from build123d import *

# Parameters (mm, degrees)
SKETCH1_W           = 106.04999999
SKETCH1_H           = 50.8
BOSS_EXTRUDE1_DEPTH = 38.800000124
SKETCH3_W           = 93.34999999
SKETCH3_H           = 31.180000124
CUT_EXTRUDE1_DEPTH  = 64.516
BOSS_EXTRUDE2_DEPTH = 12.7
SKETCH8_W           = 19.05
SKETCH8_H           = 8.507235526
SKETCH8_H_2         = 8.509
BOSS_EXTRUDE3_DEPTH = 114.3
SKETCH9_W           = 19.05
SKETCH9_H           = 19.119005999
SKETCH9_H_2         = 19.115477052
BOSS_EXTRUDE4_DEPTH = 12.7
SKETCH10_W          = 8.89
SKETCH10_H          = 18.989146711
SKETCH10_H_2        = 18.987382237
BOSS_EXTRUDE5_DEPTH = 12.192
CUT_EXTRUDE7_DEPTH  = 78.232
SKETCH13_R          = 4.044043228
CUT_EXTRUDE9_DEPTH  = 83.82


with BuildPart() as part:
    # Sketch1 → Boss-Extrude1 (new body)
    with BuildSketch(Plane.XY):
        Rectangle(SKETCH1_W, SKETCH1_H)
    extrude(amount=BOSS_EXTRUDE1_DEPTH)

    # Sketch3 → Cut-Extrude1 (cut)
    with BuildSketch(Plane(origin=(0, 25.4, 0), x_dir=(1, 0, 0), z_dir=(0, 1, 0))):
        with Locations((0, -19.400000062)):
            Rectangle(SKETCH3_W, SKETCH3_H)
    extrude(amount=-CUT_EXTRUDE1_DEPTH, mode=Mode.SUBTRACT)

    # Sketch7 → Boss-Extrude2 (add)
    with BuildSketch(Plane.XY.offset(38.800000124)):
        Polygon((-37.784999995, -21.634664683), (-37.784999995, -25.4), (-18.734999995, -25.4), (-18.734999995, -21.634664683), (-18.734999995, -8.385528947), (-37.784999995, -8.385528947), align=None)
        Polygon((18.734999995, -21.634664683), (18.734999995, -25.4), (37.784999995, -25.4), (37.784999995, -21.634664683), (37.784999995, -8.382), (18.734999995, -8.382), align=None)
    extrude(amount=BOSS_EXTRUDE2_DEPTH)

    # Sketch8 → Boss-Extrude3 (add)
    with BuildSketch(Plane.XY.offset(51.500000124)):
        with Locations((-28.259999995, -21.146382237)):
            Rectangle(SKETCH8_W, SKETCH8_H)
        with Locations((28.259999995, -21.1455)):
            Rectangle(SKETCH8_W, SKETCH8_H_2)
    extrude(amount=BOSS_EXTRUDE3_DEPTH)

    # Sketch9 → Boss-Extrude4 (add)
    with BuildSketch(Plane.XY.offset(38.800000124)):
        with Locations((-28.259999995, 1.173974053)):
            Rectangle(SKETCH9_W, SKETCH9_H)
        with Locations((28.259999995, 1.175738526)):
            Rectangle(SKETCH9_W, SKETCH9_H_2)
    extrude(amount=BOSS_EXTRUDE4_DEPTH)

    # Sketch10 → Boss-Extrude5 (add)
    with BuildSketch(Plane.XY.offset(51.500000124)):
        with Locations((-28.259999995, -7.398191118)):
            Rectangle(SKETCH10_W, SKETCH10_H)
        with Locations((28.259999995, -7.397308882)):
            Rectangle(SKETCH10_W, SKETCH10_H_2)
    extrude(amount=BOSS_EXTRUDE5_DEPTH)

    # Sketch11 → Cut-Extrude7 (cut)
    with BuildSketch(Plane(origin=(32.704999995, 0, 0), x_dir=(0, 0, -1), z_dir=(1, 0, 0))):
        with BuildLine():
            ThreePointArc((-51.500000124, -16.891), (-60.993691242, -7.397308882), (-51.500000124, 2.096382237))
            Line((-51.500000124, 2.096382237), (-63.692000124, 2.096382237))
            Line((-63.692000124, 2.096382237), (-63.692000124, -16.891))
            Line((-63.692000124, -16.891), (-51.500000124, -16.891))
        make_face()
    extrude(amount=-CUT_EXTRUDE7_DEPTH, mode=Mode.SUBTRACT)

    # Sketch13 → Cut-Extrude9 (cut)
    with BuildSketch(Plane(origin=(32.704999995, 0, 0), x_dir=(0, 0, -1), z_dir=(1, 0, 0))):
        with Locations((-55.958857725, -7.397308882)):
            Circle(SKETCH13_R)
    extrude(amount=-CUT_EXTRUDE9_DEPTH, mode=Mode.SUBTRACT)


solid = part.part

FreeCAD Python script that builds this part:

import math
import FreeCAD as App
import Part
import Sketcher
from FreeCAD import Vector
Q = App.Units.Quantity


def add_polygon(sketch, points):
    """Adds a closed chain of lines whose ends are joined by coincident constraints."""
    first, n = sketch.GeometryCount, len(points)
    for a, b in zip(points, points[1:] + points[:1]):
        sketch.addGeometry(Part.LineSegment(App.Vector(*a, 0), App.Vector(*b, 0)), False)
    for i in range(n):
        sketch.addConstraint(Sketcher.Constraint("Coincident", first + i, 2, first + (i + 1) % n, 1))

doc = App.newDocument("Part")
params = doc.addObject("Spreadsheet::Sheet", "Params")
for row, (alias, value) in enumerate([
    ("sketch1_height", "2 in"),
    ("pad1_length", "38.8 mm"),
    ("pocket1_length", "2.54 in"),
    ("sketch3_width", "0.75 in"),
    ("sketch3_height", "0.67 in"),
    ("pad2_length", "0.5 in"),
    ("sketch4_width", "0.75 in"),
    ("sketch4_height", "0.335 in"),
    ("pad3_length", "4.5 in"),
    ("sketch5_width", "0.75 in"),
    ("pad4_length", "0.5 in"),
    ("sketch6_width", "0.35 in"),
    ("pad5_length", "0.48 in"),
    ("sketch7_height", "0.48 in"),
    ("pocket2_length", "3.08 in"),
    ("pocket3_length", "3.3 in"),
], start=1):
    params.set(f"A{row}", alias)
    params.set(f"B{row}", "=" + value)
    params.setAlias(f"B{row}", alias)

body = doc.addObject("PartDesign::Body", "Body")

# Sketch on XY plane
sketch1 = body.newObject("Sketcher::SketchObject", "Sketch")
sketch1.AttachmentSupport = (doc.getObject("XY_Plane"), [""])
sketch1.MapMode = "FlatFace"
add_polygon(sketch1, [(-53, 25), (-53, -25), (53, -25), (53, 25)])  # lines 0-3
sketch1.addConstraint([
    Sketcher.Constraint("Vertical", 0),
    Sketcher.Constraint("Horizontal", 1),
    Sketcher.Constraint("Vertical", 2),
    Sketcher.Constraint("Horizontal", 3),
    Sketcher.Constraint("Symmetric", 0, 2, 2, 2, -1, 1),
    Sketcher.Constraint("DistanceY", 0, 2, 0, 1, Q("2 in")),
    Sketcher.Constraint("DistanceX", 1, 1, 1, 2, 106.05),
])
sketch1.setExpression("Constraints[9]", "Params.sketch1_height")
pad1 = body.newObject("PartDesign::Pad", "Pad")
pad1.Profile = sketch1
pad1.setExpression("Length", "Params.pad1_length")

# Sketch on XZ plane
sketch2 = body.newObject("Sketcher::SketchObject", "Sketch001")
sketch2.AttachmentSupport = (doc.getObject("XZ_Plane"), [""])
sketch2.MapMode = "FlatFace"
sketch2.AttachmentOffset = App.Placement(Vector(0, 0, -1 * 25.4), App.Rotation())
add_polygon(sketch2, [(-47, 4), (-47, 35), (47, 35), (47, 4)])  # lines 0-3
sketch2.addConstraint([
    Sketcher.Constraint("Vertical", 0),
    Sketcher.Constraint("Horizontal", 1),
    Sketcher.Constraint("Vertical", 2),
    Sketcher.Constraint("Horizontal", 3),
    Sketcher.Constraint("DistanceY", -1, 1, 2, 2, Q("0.15 in")),
    Sketcher.Constraint("DistanceX", 1, 1, 1, 2, 93.35),
    Sketcher.Constraint("DistanceY", 0, 1, 0, 2, 31.18),
    Sketcher.Constraint("DistanceX", 0, 2, -1, 1, 46.675),
])
pocket1 = body.newObject("PartDesign::Pocket", "Pocket")
pocket1.Profile = sketch2
pocket1.setExpression("Length", "Params.pocket1_length")
pocket1.Reversed = True

# Sketch on XY plane
sketch3 = body.newObject("Sketcher::SketchObject", "Sketch002")
sketch3.AttachmentSupport = (doc.getObject("XY_Plane"), [""])
sketch3.MapMode = "FlatFace"
sketch3.AttachmentOffset = App.Placement(Vector(0, 0, 38.8), App.Rotation())
add_polygon(sketch3, [(-38, -25), (-19, -25), (-19, -8), (-38, -8)])  # lines 0-3
add_polygon(sketch3, [(19, -25), (38, -25), (38, -8), (19, -8)])  # lines 4-7
sketch3.addConstraint([
    Sketcher.Constraint("Horizontal", 0),
    Sketcher.Constraint("Vertical", 1),
    Sketcher.Constraint("Horizontal", 2),
    Sketcher.Constraint("Vertical", 3),
    Sketcher.Constraint("Horizontal", 4),
    Sketcher.Constraint("Vertical", 5),
    Sketcher.Constraint("Horizontal", 6),
    Sketcher.Constraint("Vertical", 7),
    Sketcher.Constraint("Symmetric", 3, 2, 4, 2, -2),
    Sketcher.Constraint("Equal", 2, 4),
    Sketcher.Constraint("DistanceY", 0, 2, -1, 1, Q("1 in")),
    Sketcher.Constraint("DistanceX", 0, 1, 0, 2, Q("0.75 in")),
    Sketcher.Constraint("DistanceY", 5, 1, 5, 2, Q("0.67 in")),
    Sketcher.Constraint("DistanceY", 1, 1, 1, 2, 17.014471),
    Sketcher.Constraint("DistanceX", 0, 2, -1, 1, 18.735),
])
sketch3.setExpression("Constraints[19]", "Params.sketch3_width")
sketch3.setExpression("Constraints[20]", "Params.sketch3_height")
pad2 = body.newObject("PartDesign::Pad", "Pad001")
pad2.Profile = sketch3
pad2.setExpression("Length", "Params.pad2_length")

# Sketch on XY plane
sketch4 = body.newObject("Sketcher::SketchObject", "Sketch003")
sketch4.AttachmentSupport = (doc.getObject("XY_Plane"), [""])
sketch4.MapMode = "FlatFace"
sketch4.AttachmentOffset = App.Placement(Vector(0, 0, 51.5), App.Rotation())
add_polygon(sketch4, [(-38, -17), (-38, -25), (-19, -25), (-19, -17)])  # lines 0-3
add_polygon(sketch4, [(19, -17), (19, -25), (38, -25), (38, -17)])  # lines 4-7
sketch4.addConstraint([
    Sketcher.Constraint("Vertical", 0),
    Sketcher.Constraint("Horizontal", 1),
    Sketcher.Constraint("Vertical", 2),
    Sketcher.Constraint("Horizontal", 3),
    Sketcher.Constraint("Vertical", 4),
    Sketcher.Constraint("Horizontal", 5),
    Sketcher.Constraint("Vertical", 6),
    Sketcher.Constraint("Horizontal", 7),
    Sketcher.Constraint("Symmetric", 1, 2, 4, 2, -2),
    Sketcher.Constraint("Equal", 3, 5),
    Sketcher.Constraint("DistanceY", 0, 2, -1, 1, Q("1 in")),
    Sketcher.Constraint("DistanceX", 1, 1, 1, 2, Q("0.75 in")),
    Sketcher.Constraint("DistanceY", 4, 2, 4, 1, Q("0.335 in")),
    Sketcher.Constraint("DistanceX", 0, 2, -1, 1, 37.785),
    Sketcher.Constraint("DistanceY", 0, 2, 0, 1, 8.507236),
])
sketch4.setExpression("Constraints[19]", "Params.sketch4_width")
sketch4.setExpression("Constraints[20]", "Params.sketch4_height")
pad3 = body.newObject("PartDesign::Pad", "Pad002")
pad3.Profile = sketch4
pad3.setExpression("Length", "Params.pad3_length")

# Sketch on XY plane
sketch5 = body.newObject("Sketcher::SketchObject", "Sketch004")
sketch5.AttachmentSupport = (doc.getObject("XY_Plane"), [""])
sketch5.MapMode = "FlatFace"
sketch5.AttachmentOffset = App.Placement(Vector(0, 0, 38.8), App.Rotation())
add_polygon(sketch5, [(-38, 11), (-38, -8), (-19, -8), (-19, 11)])  # lines 0-3
add_polygon(sketch5, [(19, 11), (19, -8), (38, -8), (38, 11)])  # lines 4-7
sketch5.addConstraint([
    Sketcher.Constraint("Vertical", 0),
    Sketcher.Constraint("Horizontal", 1),
    Sketcher.Constraint("Vertical", 2),
    Sketcher.Constraint("Horizontal", 3),
    Sketcher.Constraint("Vertical", 4),
    Sketcher.Constraint("Horizontal", 5),
    Sketcher.Constraint("Vertical", 6),
    Sketcher.Constraint("Horizontal", 7),
    Sketcher.Constraint("Symmetric", 3, 2, 6, 2, -2),
    Sketcher.Constraint("Equal", 3, 5),
    Sketcher.Constraint("DistanceX", 1, 1, 1, 2, Q("0.75 in")),
    Sketcher.Constraint("DistanceY", 4, 2, -1, 1, Q("0.33 in")),
    Sketcher.Constraint("DistanceX", 0, 2, -1, 1, 37.785),
    Sketcher.Constraint("DistanceY", 0, 2, 0, 1, 19.119006),
    Sketcher.Constraint("DistanceY", 4, 2, 4, 1, 19.115477),
])
sketch5.setExpression("Constraints[18]", "Params.sketch5_width")
pad4 = body.newObject("PartDesign::Pad", "Pad003")
pad4.Profile = sketch5
pad4.setExpression("Length", "Params.pad4_length")

# Sketch on XY plane
sketch6 = body.newObject("Sketcher::SketchObject", "Sketch005")
sketch6.AttachmentSupport = (doc.getObject("XY_Plane"), [""])
sketch6.MapMode = "FlatFace"
sketch6.AttachmentOffset = App.Placement(Vector(0, 0, 51.5), App.Rotation())
add_polygon(sketch6, [(-33, 2), (-33, -17), (-24, -17), (-24, 2)])  # lines 0-3
add_polygon(sketch6, [(24, 2), (24, -17), (33, -17), (33, 2)])  # lines 4-7
sketch6.addConstraint([
    Sketcher.Constraint("Vertical", 0),
    Sketcher.Constraint("Horizontal", 1),
    Sketcher.Constraint("Vertical", 2),
    Sketcher.Constraint("Horizontal", 3),
    Sketcher.Constraint("Vertical", 4),
    Sketcher.Constraint("Horizontal", 5),
    Sketcher.Constraint("Vertical", 6),
    Sketcher.Constraint("Horizontal", 7),
    Sketcher.Constraint("Symmetric", 3, 2, 6, 2, -2),
    Sketcher.Constraint("Equal", 3, 5),
    Sketcher.Constraint("DistanceX", 1, 1, 1, 2, Q("0.35 in")),
    Sketcher.Constraint("DistanceY", 4, 2, -1, 1, Q("0.665 in")),
    Sketcher.Constraint("DistanceX", 0, 2, -1, 1, 32.705),
    Sketcher.Constraint("DistanceY", 0, 2, 0, 1, 18.989147),
    Sketcher.Constraint("DistanceY", 4, 2, 4, 1, 18.987382),
])
sketch6.setExpression("Constraints[18]", "Params.sketch6_width")
pad5 = body.newObject("PartDesign::Pad", "Pad004")
pad5.Profile = sketch6
pad5.setExpression("Length", "Params.pad5_length")

# Sketch on YZ plane
sketch7 = body.newObject("Sketcher::SketchObject", "Sketch006")
sketch7.AttachmentSupport = (doc.getObject("YZ_Plane"), [""])
sketch7.MapMode = "FlatFace"
sketch7.AttachmentOffset = App.Placement(Vector(0, 0, 32.705), App.Rotation())
sketch7.addGeometry([
    Part.ArcOfCircle(Part.Circle(Vector(-7, 52, 0), Vector(0, 0, 1), 9), math.radians(0), math.radians(180)),
    Part.LineSegment(Vector(2, 52, 0), Vector(2, 64, 0)),
    Part.LineSegment(Vector(2, 64, 0), Vector(-17, 64, 0)),
    Part.LineSegment(Vector(-17, 64, 0), Vector(-17, 52, 0)),
], False)
sketch7.addConstraint([
    Sketcher.Constraint("Tangent", 0, 1, 1, 1),
    Sketcher.Constraint("Coincident", 1, 2, 2, 1),
    Sketcher.Constraint("Coincident", 2, 2, 3, 1),
    Sketcher.Constraint("Tangent", 3, 2, 0, 2),
    Sketcher.Constraint("Vertical", 1),
    Sketcher.Constraint("Horizontal", 2),
    Sketcher.Constraint("Vertical", 3),
    Sketcher.Constraint("DistanceY", 1, 1, 1, 2, Q("0.48 in")),
    Sketcher.Constraint("DistanceX", 2, 2, -1, 1, Q("0.665 in")),
    Sketcher.Constraint("Radius", 0, 9.493691),
    Sketcher.Constraint("DistanceY", -1, 1, 0, 3, 51.5),
])
sketch7.setExpression("Constraints[7]", "Params.sketch7_height")
pocket2 = body.newObject("PartDesign::Pocket", "Pocket001")
pocket2.Profile = sketch7
pocket2.setExpression("Length", "Params.pocket2_length")

# Sketch on YZ plane
sketch8 = body.newObject("Sketcher::SketchObject", "Sketch007")
sketch8.AttachmentSupport = (doc.getObject("YZ_Plane"), [""])
sketch8.MapMode = "FlatFace"
sketch8.AttachmentOffset = App.Placement(Vector(0, 0, 32.705), App.Rotation())
sketch8.addGeometry(Part.Circle(Vector(-7.4, 56, 0), Vector(0, 0, 1), 4), False)
sketch8.addConstraint([
    Sketcher.Constraint("Diameter", 0, 8.088086),
    Sketcher.Constraint("DistanceX", 0, 3, -1, 1, 7.397309),
    Sketcher.Constraint("DistanceY", -1, 1, 0, 3, 55.958858),
])
pocket3 = body.newObject("PartDesign::Pocket", "Pocket002")
pocket3.Profile = sketch8
pocket3.setExpression("Length", "Params.pocket3_length")

doc.recompute()
